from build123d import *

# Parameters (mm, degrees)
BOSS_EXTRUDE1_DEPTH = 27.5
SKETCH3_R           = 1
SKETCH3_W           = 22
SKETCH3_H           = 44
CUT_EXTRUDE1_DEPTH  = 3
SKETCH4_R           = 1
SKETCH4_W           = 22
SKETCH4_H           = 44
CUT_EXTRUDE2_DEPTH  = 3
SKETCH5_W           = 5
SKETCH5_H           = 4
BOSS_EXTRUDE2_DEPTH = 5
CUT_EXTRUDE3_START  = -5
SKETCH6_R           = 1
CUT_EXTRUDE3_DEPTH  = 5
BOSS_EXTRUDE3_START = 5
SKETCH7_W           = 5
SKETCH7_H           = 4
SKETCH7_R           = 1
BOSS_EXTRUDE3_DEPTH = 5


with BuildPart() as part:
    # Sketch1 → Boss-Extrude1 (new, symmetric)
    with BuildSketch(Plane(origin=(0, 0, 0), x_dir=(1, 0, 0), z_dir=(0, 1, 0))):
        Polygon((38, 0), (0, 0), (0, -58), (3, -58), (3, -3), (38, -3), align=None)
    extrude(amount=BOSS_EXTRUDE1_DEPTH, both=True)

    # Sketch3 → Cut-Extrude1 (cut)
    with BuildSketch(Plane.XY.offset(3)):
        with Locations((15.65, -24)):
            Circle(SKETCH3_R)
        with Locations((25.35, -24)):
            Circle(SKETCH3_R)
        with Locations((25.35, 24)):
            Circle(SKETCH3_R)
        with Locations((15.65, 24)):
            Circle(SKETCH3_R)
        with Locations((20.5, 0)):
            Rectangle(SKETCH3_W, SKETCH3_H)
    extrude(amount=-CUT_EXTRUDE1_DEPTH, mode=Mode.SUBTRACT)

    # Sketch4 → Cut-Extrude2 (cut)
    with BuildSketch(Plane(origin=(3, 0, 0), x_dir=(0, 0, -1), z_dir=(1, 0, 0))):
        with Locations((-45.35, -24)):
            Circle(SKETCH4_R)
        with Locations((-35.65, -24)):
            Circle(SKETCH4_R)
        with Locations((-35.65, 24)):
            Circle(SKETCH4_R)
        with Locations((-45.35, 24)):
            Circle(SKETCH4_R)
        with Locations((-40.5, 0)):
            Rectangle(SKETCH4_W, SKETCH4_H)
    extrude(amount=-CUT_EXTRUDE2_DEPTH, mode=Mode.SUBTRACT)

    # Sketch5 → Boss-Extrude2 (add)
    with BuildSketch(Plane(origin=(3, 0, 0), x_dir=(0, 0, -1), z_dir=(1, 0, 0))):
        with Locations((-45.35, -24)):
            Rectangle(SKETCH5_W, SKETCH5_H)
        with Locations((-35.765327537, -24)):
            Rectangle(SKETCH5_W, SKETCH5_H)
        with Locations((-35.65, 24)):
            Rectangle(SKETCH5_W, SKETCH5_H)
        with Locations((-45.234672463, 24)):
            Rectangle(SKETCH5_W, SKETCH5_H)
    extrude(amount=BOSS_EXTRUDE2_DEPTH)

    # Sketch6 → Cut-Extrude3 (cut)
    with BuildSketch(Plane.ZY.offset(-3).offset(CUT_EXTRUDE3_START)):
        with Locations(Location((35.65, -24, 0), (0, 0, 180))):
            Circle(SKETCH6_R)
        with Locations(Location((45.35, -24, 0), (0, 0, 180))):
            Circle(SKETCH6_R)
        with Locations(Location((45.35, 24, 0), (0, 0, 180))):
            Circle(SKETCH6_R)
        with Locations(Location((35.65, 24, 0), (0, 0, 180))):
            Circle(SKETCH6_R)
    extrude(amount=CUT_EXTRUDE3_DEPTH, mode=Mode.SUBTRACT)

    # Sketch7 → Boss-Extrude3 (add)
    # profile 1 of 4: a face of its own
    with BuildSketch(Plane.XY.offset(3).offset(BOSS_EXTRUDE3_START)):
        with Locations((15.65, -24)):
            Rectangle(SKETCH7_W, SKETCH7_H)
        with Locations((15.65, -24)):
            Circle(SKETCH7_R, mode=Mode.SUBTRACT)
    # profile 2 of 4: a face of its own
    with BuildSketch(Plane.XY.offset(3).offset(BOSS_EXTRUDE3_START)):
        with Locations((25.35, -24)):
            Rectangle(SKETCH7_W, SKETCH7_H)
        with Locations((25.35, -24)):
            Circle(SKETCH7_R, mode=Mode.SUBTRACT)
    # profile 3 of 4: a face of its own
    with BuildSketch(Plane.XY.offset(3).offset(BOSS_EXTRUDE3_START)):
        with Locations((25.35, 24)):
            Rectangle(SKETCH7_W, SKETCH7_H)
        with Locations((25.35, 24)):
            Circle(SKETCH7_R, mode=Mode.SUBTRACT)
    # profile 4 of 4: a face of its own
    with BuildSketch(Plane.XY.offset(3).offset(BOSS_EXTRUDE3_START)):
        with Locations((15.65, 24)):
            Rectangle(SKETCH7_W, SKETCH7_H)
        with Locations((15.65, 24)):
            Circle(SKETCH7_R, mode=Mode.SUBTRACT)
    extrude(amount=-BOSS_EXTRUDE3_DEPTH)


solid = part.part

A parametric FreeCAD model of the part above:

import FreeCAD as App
import Part
import Sketcher

doc = App.newDocument("Part")
body = doc.addObject("PartDesign::Body", "Body")

sketch1 = doc.addObject("Sketcher::SketchObject", "Sketch")
body.addObject(sketch1)
sketch1.AttachmentSupport = (doc.XZ_Plane, [""])
sketch1.MapMode = "FlatFace"
sketch1.addGeometry(Part.LineSegment(App.Vector(38, 0, 0), App.Vector(0, 0, 0)), False)
sketch1.addGeometry(Part.LineSegment(App.Vector(0, 0, 0), App.Vector(0, 58, 0)), False)
sketch1.addGeometry(Part.LineSegment(App.Vector(0, 58, 0), App.Vector(3, 58, 0)), False)
sketch1.addGeometry(Part.LineSegment(App.Vector(3, 58, 0), App.Vector(3, 3, 0)), False)
sketch1.addGeometry(Part.LineSegment(App.Vector(3, 3, 0), App.Vector(38, 3, 0)), False)
sketch1.addGeometry(Part.LineSegment(App.Vector(38, 3, 0), App.Vector(38, 0, 0)), False)
sketch1.addConstraint(Sketcher.Constraint("Coincident", 0, 2, 1, 1))
sketch1.addConstraint(Sketcher.Constraint("Coincident", 1, 2, 2, 1))
sketch1.addConstraint(Sketcher.Constraint("Coincident", 2, 2, 3, 1))
sketch1.addConstraint(Sketcher.Constraint("Coincident", 3, 2, 4, 1))
sketch1.addConstraint(Sketcher.Constraint("Coincident", 4, 2, 5, 1))
sketch1.addConstraint(Sketcher.Constraint("Coincident", 5, 2, 0, 1))
sketch1.addConstraint(Sketcher.Constraint("Horizontal", 0))
sketch1.addConstraint(Sketcher.Constraint("Vertical", 1))
sketch1.addConstraint(Sketcher.Constraint("Horizontal", 2))
sketch1.addConstraint(Sketcher.Constraint("Vertical", 3))
sketch1.addConstraint(Sketcher.Constraint("Horizontal", 4))
sketch1.addConstraint(Sketcher.Constraint("Vertical", 5))
sketch1.addConstraint(Sketcher.Constraint("Coincident", 0, 2, -1, 1))
sketch1.addConstraint(Sketcher.Constraint("Equal", 2, 5))
sketch1.addConstraint(Sketcher.Constraint("DistanceX", 0, 2, 0, 1, 38.0))
sketch1.addConstraint(Sketcher.Constraint("DistanceX", 2, 1, 2, 2, 3.0))
sketch1.addConstraint(Sketcher.Constraint("DistanceY", 1, 1, 1, 2, 58.0))
pad1 = doc.addObject("PartDesign::Pad", "Pad")
body.addObject(pad1)
pad1.Profile = sketch1
pad1.Length = 55
pad1.Midplane = True

sketch2 = doc.addObject("Sketcher::SketchObject", "Sketch001")
body.addObject(sketch2)
sketch2.AttachmentSupport = (doc.XY_Plane, [""])
sketch2.MapMode = "FlatFace"
sketch2.AttachmentOffset = App.Placement(App.Vector(0, 0, 3), App.Rotation())
sketch2.addGeometry(Part.Circle(App.Vector(15.7, -24, 0), App.Vector(0, 0, 1), 1), False)
sketch2.addGeometry(Part.Circle(App.Vector(25.4, -24, 0), App.Vector(0, 0, 1), 1), False)
sketch2.addGeometry(Part.Circle(App.Vector(25.4, 24, 0), App.Vector(0, 0, 1), 1), False)
sketch2.addGeometry(Part.Circle(App.Vector(15.7, 24, 0), App.Vector(0, 0, 1), 1), False)
sketch2.addGeometry(Part.LineSegment(App.Vector(9.5, 22, 0), App.Vector(9.5, -22, 0)), False)
sketch2.addGeometry(Part.LineSegment(App.Vector(9.5, -22, 0), App.Vector(31.5, -22, 0)), False)
sketch2.addGeometry(Part.LineSegment(App.Vector(31.5, -22, 0), App.Vector(31.5, 22, 0)), False)
sketch2.addGeometry(Part.LineSegment(App.Vector(31.5, 22, 0), App.Vector(9.5, 22, 0)), False)
sketch2.addConstraint(Sketcher.Constraint("Coincident", 4, 2, 5, 1))
sketch2.addConstraint(Sketcher.Constraint("Coincident", 5, 2, 6, 1))
sketch2.addConstraint(Sketcher.Constraint("Coincident", 6, 2, 7, 1))
sketch2.addConstraint(Sketcher.Constraint("Coincident", 7, 2, 4, 1))
sketch2.addConstraint(Sketcher.Constraint("Vertical", 4))
sketch2.addConstraint(Sketcher.Constraint("Horizontal", 5))
sketch2.addConstraint(Sketcher.Constraint("Vertical", 6))
sketch2.addConstraint(Sketcher.Constraint("Horizontal", 7))
sketch2.addConstraint(Sketcher.Constraint("Equal", 0, 1))
sketch2.addConstraint(Sketcher.Constraint("Equal", 1, 2))
sketch2.addConstraint(Sketcher.Constraint("Equal", 2, 3))
sketch2.addConstraint(Sketcher.Constraint("Symmetric", 1, 3, 2, 3, -1))
sketch2.addConstraint(Sketcher.Constraint("Symmetric", 0, 3, 3, 3, -1))
sketch2.addConstraint(Sketcher.Constraint("Horizontal", 0, 3, 1, 3))
sketch2.addConstraint(Sketcher.Constraint("Diameter", 0, 2.0))
sketch2.addConstraint(Sketcher.Constraint("DistanceX", 5, 1, 5, 2, 22.0))
sketch2.addConstraint(Sketcher.Constraint("DistanceY", 4, 2, 4, 1, 44.0))
sketch2.addConstraint(Sketcher.Constraint("DistanceY", 0, 3, -1, 1, 24.0))
sketch2.addConstraint(Sketcher.Constraint("DistanceY", 4, 2, -1, 1, 22.0))
sketch2.addConstraint(Sketcher.Constraint("DistanceX", -1, 1, 4, 2, 9.5))
sketch2.addConstraint(Sketcher.Constraint("DistanceX", 0, 3, 1, 3, 9.7))
sketch2.addConstraint(Sketcher.Constraint("DistanceX", -1, 1, 0, 3, 15.65))
pocket1 = doc.addObject("PartDesign::Pocket", "Pocket")
body.addObject(pocket1)
pocket1.Profile = sketch2
pocket1.Length = 3

sketch3 = doc.addObject("Sketcher::SketchObject", "Sketch002")
body.addObject(sketch3)
sketch3.AttachmentSupport = (doc.YZ_Plane, [""])
sketch3.MapMode = "FlatFace"
sketch3.AttachmentOffset = App.Placement(App.Vector(0, 0, 3), App.Rotation())
sketch3.addGeometry(Part.Circle(App.Vector(-24, 45.4, 0), App.Vector(0, 0, 1), 1), False)
sketch3.addGeometry(Part.Circle(App.Vector(-24, 35.6, 0), App.Vector(0, 0, 1), 1), False)
sketch3.addGeometry(Part.Circle(App.Vector(24, 35.6, 0), App.Vector(0, 0, 1), 1), False)
sketch3.addGeometry(Part.Circle(App.Vector(24, 45.4, 0), App.Vector(0, 0, 1), 1), False)
sketch3.addGeometry(Part.LineSegment(App.Vector(22, 51.5, 0), App.Vector(-22, 51.5, 0)), False)
sketch3.addGeometry(Part.LineSegment(App.Vector(-22, 51.5, 0), App.Vector(-22, 29.5, 0)), False)
sketch3.addGeometry(Part.LineSegment(App.Vector(-22, 29.5, 0), App.Vector(22, 29.5, 0)), False)
sketch3.addGeometry(Part.LineSegment(App.Vector(22, 29.5, 0), App.Vector(22, 51.5, 0)), False)
sketch3.addConstraint(Sketcher.Constraint("Coincident", 4, 2, 5, 1))
sketch3.addConstraint(Sketcher.Constraint("Coincident", 5, 2, 6, 1))
sketch3.addConstraint(Sketcher.Constraint("Coincident", 6, 2, 7, 1))
sketch3.addConstraint(Sketcher.Constraint("Coincident", 7, 2, 4, 1))
sketch3.addConstraint(Sketcher.Constraint("Horizontal", 4))
sketch3.addConstraint(Sketcher.Constraint("Vertical", 5))
sketch3.addConstraint(Sketcher.Constraint("Horizontal", 6))
sketch3.addConstraint(Sketcher.Constraint("Vertical", 7))
sketch3.addConstraint(Sketcher.Constraint("Equal", 0, 1))
sketch3.addConstraint(Sketcher.Constraint("Equal", 1, 2))
sketch3.addConstraint(Sketcher.Constraint("Equal", 2, 3))
sketch3.addConstraint(Sketcher.Constraint("Symmetric", 1, 3, 2, 3, -2))
sketch3.addConstraint(Sketcher.Constraint("Symmetric", 0, 3, 3, 3, -2))
sketch3.addConstraint(Sketcher.Constraint("Vertical", 0, 3, 1, 3))
sketch3.addConstraint(Sketcher.Constraint("Diameter", 0, 2.0))
sketch3.addConstraint(Sketcher.Constraint("DistanceX", 4, 2, 4, 1, 44.0))
sketch3.addConstraint(Sketcher.Constraint("DistanceY", 5, 2, 5, 1, 22.0))
sketch3.addConstraint(Sketcher.Constraint("DistanceX", 0, 3, -1, 1, 24.0))
sketch3.addConstraint(Sketcher.Constraint("DistanceX", 4, 2, -1, 1, 22.0))
sketch3.addConstraint(Sketcher.Constraint("DistanceY", -1, 1, 4, 2, 51.5))
sketch3.addConstraint(Sketcher.Constraint("DistanceY", 1, 3, 0, 3, 9.7))
sketch3.addConstraint(Sketcher.Constraint("DistanceY", -1, 1, 0, 3, 45.35))
pocket2 = doc.addObject("PartDesign::Pocket", "Pocket001")
body.addObject(pocket2)
pocket2.Profile = sketch3
pocket2.Length = 3

sketch4 = doc.addObject("Sketcher::SketchObject", "Sketch003")
body.addObject(sketch4)
sketch4.AttachmentSupport = (doc.YZ_Plane, [""])
sketch4.MapMode = "FlatFace"
sketch4.AttachmentOffset = App.Placement(App.Vector(0, 0, 3), App.Rotation())
sketch4.addGeometry(Part.LineSegment(App.Vector(-22, 47.9, 0), App.Vector(-26, 47.9, 0)), False)
sketch4.addGeometry(Part.LineSegment(App.Vector(-26, 47.9, 0), App.Vector(-26, 42.9, 0)), False)
sketch4.addGeometry(Part.LineSegment(App.Vector(-26, 42.9, 0), App.Vector(-22, 42.9, 0)), False)
sketch4.addGeometry(Part.LineSegment(App.Vector(-22, 42.9, 0), App.Vector(-22, 47.9, 0)), False)
sketch4.addGeometry(Part.LineSegment(App.Vector(-22, 38.3, 0), App.Vector(-26, 38.3, 0)), False)
sketch4.addGeometry(Part.LineSegment(App.Vector(-26, 38.3, 0), App.Vector(-26, 33.3, 0)), False)
sketch4.addGeometry(Part.LineSegment(App.Vector(-26, 33.3, 0), App.Vector(-22, 33.3, 0)), False)
sketch4.addGeometry(Part.LineSegment(App.Vector(-22, 33.3, 0), App.Vector(-22, 38.3, 0)), False)
sketch4.addGeometry(Part.LineSegment(App.Vector(26, 38.1, 0), App.Vector(22, 38.1, 0)), False)
sketch4.addGeometry(Part.LineSegment(App.Vector(22, 38.1, 0), App.Vector(22, 33.1, 0)), False)
sketch4.addGeometry(Part.LineSegment(App.Vector(22, 33.1, 0), App.Vector(26, 33.1, 0)), False)
sketch4.addGeometry(Part.LineSegment(App.Vector(26, 33.1, 0), App.Vector(26, 38.1, 0)), False)
sketch4.addGeometry(Part.LineSegment(App.Vector(26, 47.7, 0), App.Vector(22, 47.7, 0)), False)
sketch4.addGeometry(Part.LineSegment(App.Vector(22, 47.7, 0), App.Vector(22, 42.7, 0)), False)
sketch4.addGeometry(Part.LineSegment(App.Vector(22, 42.7, 0), App.Vector(26, 42.7, 0)), False)
sketch4.addGeometry(Part.LineSegment(App.Vector(26, 42.7, 0), App.Vector(26, 47.7, 0)), False)
sketch4.addConstraint(Sketcher.Constraint("Coincident", 0, 2, 1, 1))
sketch4.addConstraint(Sketcher.Constraint("Coincident", 1, 2, 2, 1))
sketch4.addConstraint(Sketcher.Constraint("Coincident", 2, 2, 3, 1))
sketch4.addConstraint(Sketcher.Constraint("Coincident", 3, 2, 0, 1))
sketch4.addConstraint(Sketcher.Constraint("Coincident", 4, 2, 5, 1))
sketch4.addConstraint(Sketcher.Constraint("Coincident", 5, 2, 6, 1))
sketch4.addConstraint(Sketcher.Constraint("Coincident", 6, 2, 7, 1))
sketch4.addConstraint(Sketcher.Constraint("Coincident", 7, 2, 4, 1))
sketch4.addConstraint(Sketcher.Constraint("Coincident", 8, 2, 9, 1))
sketch4.addConstraint(Sketcher.Constraint("Coincident", 9, 2, 10, 1))
sketch4.addConstraint(Sketcher.Constraint("Coincident", 10, 2, 11, 1))
sketch4.addConstraint(Sketcher.Constraint("Coincident", 11, 2, 8, 1))
sketch4.addConstraint(Sketcher.Constraint("Coincident", 12, 2, 13, 1))
sketch4.addConstraint(Sketcher.Constraint("Coincident", 13, 2, 14, 1))
sketch4.addConstraint(Sketcher.Constraint("Coincident", 14, 2, 15, 1))
sketch4.addConstraint(Sketcher.Constraint("Coincident", 15, 2, 12, 1))
sketch4.addConstraint(Sketcher.Constraint("Horizontal", 0))
sketch4.addConstraint(Sketcher.Constraint("Vertical", 1))
sketch4.addConstraint(Sketcher.Constraint("Horizontal", 2))
sketch4.addConstraint(Sketcher.Constraint("Vertical", 3))
sketch4.addConstraint(Sketcher.Constraint("Horizontal", 4))
sketch4.addConstraint(Sketcher.Constraint("Vertical", 5))
sketch4.addConstraint(Sketcher.Constraint("Horizontal", 6))
sketch4.addConstraint(Sketcher.Constraint("Vertical", 7))
sketch4.addConstraint(Sketcher.Constraint("Horizontal", 8))
sketch4.addConstraint(Sketcher.Constraint("Vertical", 9))
sketch4.addConstraint(Sketcher.Constraint("Horizontal", 10))
sketch4.addConstraint(Sketcher.Constraint("Vertical", 11))
sketch4.addConstraint(Sketcher.Constraint("Horizontal", 12))
sketch4.addConstraint(Sketcher.Constraint("Vertical", 13))
sketch4.addConstraint(Sketcher.Constraint("Horizontal", 14))
sketch4.addConstraint(Sketcher.Constraint("Vertical", 15))
sketch4.addConstraint(Sketcher.Constraint("Vertical", 1, 2, 4, 2))
sketch4.addConstraint(Sketcher.Constraint("Vertical", 3, 2, 6, 2))
sketch4.addConstraint(Sketcher.Constraint("Vertical", 9, 2, 12, 2))
sketch4.addConstraint(Sketcher.Constraint("Vertical", 11, 2, 14, 2))
sketch4.addConstraint(Sketcher.Constraint("Equal", 6, 8))
sketch4.addConstraint(Sketcher.Constraint("Equal", 3, 5))
sketch4.addConstraint(Sketcher.Constraint("Equal", 7, 9))
sketch4.addConstraint(Sketcher.Constraint("Equal", 11, 13))
sketch4.addConstraint(Sketcher.Constraint("DistanceX", 0, 2, 0, 1, 4.0))
sketch4.addConstraint(Sketcher.Constraint("DistanceY", 1, 2, 1, 1, 5.0))
sketch4.addConstraint(Sketcher.Constraint("DistanceX", 0, 2, -1, 1, 26.0))
sketch4.addConstraint(Sketcher.Constraint("DistanceX", -1, 1, 8, 2, 22.0))
sketch4.addConstraint(Sketcher.Constraint("DistanceY", 8, 2, 2, 2, 4.7))
sketch4.addConstraint(Sketcher.Constraint("DistanceY", -1, 1, 0, 2, 47.85))
sketch4.addConstraint(Sketcher.Constraint("DistanceY", -1, 1, 4, 2, 38.265328))
sketch4.addConstraint(Sketcher.Constraint("DistanceY", -1, 1, 12, 2, 47.734672))
pad2 = doc.addObject("PartDesign::Pad", "Pad001")
body.addObject(pad2)
pad2.Profile = sketch4
pad2.Length = 5

sketch5 = doc.addObject("Sketcher::SketchObject", "Sketch004")
body.addObject(sketch5)
sketch5.AttachmentSupport = (doc.YZ_Plane, [""])
sketch5.MapMode = "FlatFace"
sketch5.AttachmentOffset = App.Placement(App.Vector(0, 0, 8), App.Rotation())
sketch5.addGeometry(Part.Circle(App.Vector(-24, 35.6, 0), App.Vector(0, 0, 1), 1), False)
sketch5.addGeometry(Part.Circle(App.Vector(-24, 45.4, 0), App.Vector(0, 0, 1), 1), False)
sketch5.addGeometry(Part.Circle(App.Vector(24, 45.4, 0), App.Vector(0, 0, 1), 1), False)
sketch5.addGeometry(Part.Circle(App.Vector(24, 35.6, 0), App.Vector(0, 0, 1), 1), False)
sketch5.addConstraint(Sketcher.Constraint("Equal", 0, 1))
sketch5.addConstraint(Sketcher.Constraint("Equal", 1, 2))
sketch5.addConstraint(Sketcher.Constraint("Equal", 2, 3))
sketch5.addConstraint(Sketcher.Constraint("Symmetric", 1, 3, 2, 3, -2))
sketch5.addConstraint(Sketcher.Constraint("Symmetric", 0, 3, 3, 3, -2))
sketch5.addConstraint(Sketcher.Constraint("Vertical", 0, 3, 1, 3))
sketch5.addConstraint(Sketcher.Constraint("Diameter", 0, 2.0))
sketch5.addConstraint(Sketcher.Constraint("DistanceX", 0, 3, -1, 1, 24.0))
sketch5.addConstraint(Sketcher.Constraint("DistanceY", 0, 3, 1, 3, 9.7))
sketch5.addConstraint(Sketcher.Constraint("DistanceY", -1, 1, 0, 3, 35.65))
pocket3 = doc.addObject("PartDesign::Pocket", "Pocket002")
body.addObject(pocket3)
pocket3.Profile = sketch5
pocket3.Length = 5

sketch6 = doc.addObject("Sketcher::SketchObject", "Sketch005")
body.addObject(sketch6)
sketch6.AttachmentSupport = (doc.XY_Plane, [""])
sketch6.MapMode = "FlatFace"
sketch6.AttachmentOffset = App.Placement(App.Vector(0, 0, 8), App.Rotation())
sketch6.addGeometry(Part.LineSegment(App.Vector(13.2, -22, 0), App.Vector(13.2, -26, 0)), False)
sketch6.addGeometry(Part.LineSegment(App.Vector(13.2, -26, 0), App.Vector(18.1, -26, 0)), False)
sketch6.addGeometry(Part.LineSegment(App.Vector(18.1, -26, 0), App.Vector(18.1, -22, 0)), False)
sketch6.addGeometry(Part.LineSegment(App.Vector(18.1, -22, 0), App.Vector(13.2, -22, 0)), False)
sketch6.addGeometry(Part.Circle(App.Vector(15.7, -24, 0), App.Vector(0, 0, 1), 1), False)
sketch6.addGeometry(Part.LineSegment(App.Vector(22.9, -22, 0), App.Vector(22.9, -26, 0)), False)
sketch6.addGeometry(Part.LineSegment(App.Vector(22.9, -26, 0), App.Vector(27.9, -26, 0)), False)
sketch6.addGeometry(Part.LineSegment(App.Vector(27.9, -26, 0), App.Vector(27.9, -22, 0)), False)
sketch6.addGeometry(Part.LineSegment(App.Vector(27.9, -22, 0), App.Vector(22.9, -22, 0)), False)
sketch6.addGeometry(Part.Circle(App.Vector(25.4, -24, 0), App.Vector(0, 0, 1), 1), False)
sketch6.addGeometry(Part.LineSegment(App.Vector(22.9, 26, 0), App.Vector(22.9, 22, 0)), False)
sketch6.addGeometry(Part.LineSegment(App.Vector(22.9, 22, 0), App.Vector(27.9, 22, 0)), False)
sketch6.addGeometry(Part.LineSegment(App.Vector(27.9, 22, 0), App.Vector(27.9, 26, 0)), False)
sketch6.addGeometry(Part.LineSegment(App.Vector(27.9, 26, 0), App.Vector(22.9, 26, 0)), False)
sketch6.addGeometry(Part.Circle(App.Vector(25.4, 24, 0), App.Vector(0, 0, 1), 1), False)
sketch6.addGeometry(Part.LineSegment(App.Vector(13.2, 26, 0), App.Vector(13.2, 22, 0)), False)
sketch6.addGeometry(Part.LineSegment(App.Vector(13.2, 22, 0), App.Vector(18.1, 22, 0)), False)
sketch6.addGeometry(Part.LineSegment(App.Vector(18.1, 22, 0), App.Vector(18.1, 26, 0)), False)
sketch6.addGeometry(Part.LineSegment(App.Vector(18.1, 26, 0), App.Vector(13.2, 26, 0)), False)
sketch6.addGeometry(Part.Circle(App.Vector(15.7, 24, 0), App.Vector(0, 0, 1), 1), False)
sketch6.addConstraint(Sketcher.Constraint("Coincident", 0, 2, 1, 1))
sketch6.addConstraint(Sketcher.Constraint("Coincident", 1, 2, 2, 1))
sketch6.addConstraint(Sketcher.Constraint("Coincident", 2, 2, 3, 1))
sketch6.addConstraint(Sketcher.Constraint("Coincident", 3, 2, 0, 1))
sketch6.addConstraint(Sketcher.Constraint("Coincident", 5, 2, 6, 1))
sketch6.addConstraint(Sketcher.Constraint("Coincident", 6, 2, 7, 1))
sketch6.addConstraint(Sketcher.Constraint("Coincident", 7, 2, 8, 1))
sketch6.addConstraint(Sketcher.Constraint("Coincident", 8, 2, 5, 1))
sketch6.addConstraint(Sketcher.Constraint("Coincident", 10, 2, 11, 1))
sketch6.addConstraint(Sketcher.Constraint("Coincident", 11, 2, 12, 1))
sketch6.addConstraint(Sketcher.Constraint("Coincident", 12, 2, 13, 1))
sketch6.addConstraint(Sketcher.Constraint("Coincident", 13, 2, 10, 1))
sketch6.addConstraint(Sketcher.Constraint("Coincident", 15, 2, 16, 1))
sketch6.addConstraint(Sketcher.Constraint("Coincident", 16, 2, 17, 1))
sketch6.addConstraint(Sketcher.Constraint("Coincident", 17, 2, 18, 1))
sketch6.addConstraint(Sketcher.Constraint("Coincident", 18, 2, 15, 1))
sketch6.addConstraint(Sketcher.Constraint("Vertical", 0))
sketch6.addConstraint(Sketcher.Constraint("Horizontal", 1))
sketch6.addConstraint(Sketcher.Constraint("Vertical", 2))
sketch6.addConstraint(Sketcher.Constraint("Horizontal", 3))
sketch6.addConstraint(Sketcher.Constraint("Vertical", 5))
sketch6.addConstraint(Sketcher.Constraint("Horizontal", 6))
sketch6.addConstraint(Sketcher.Constraint("Vertical", 7))
sketch6.addConstraint(Sketcher.Constraint("Horizontal", 8))
sketch6.addConstraint(Sketcher.Constraint("Vertical", 10))
sketch6.addConstraint(Sketcher.Constraint("Horizontal", 11))
sketch6.addConstraint(Sketcher.Constraint("Vertical", 12))
sketch6.addConstraint(Sketcher.Constraint("Horizontal", 13))
sketch6.addConstraint(Sketcher.Constraint("Vertical", 15))
sketch6.addConstraint(Sketcher.Constraint("Horizontal", 16))
sketch6.addConstraint(Sketcher.Constraint("Vertical", 17))
sketch6.addConstraint(Sketcher.Constraint("Horizontal", 18))
sketch6.addConstraint(Sketcher.Constraint("Equal", 4, 9))
sketch6.addConstraint(Sketcher.Constraint("Equal", 9, 14))
sketch6.addConstraint(Sketcher.Constraint("Equal", 14, 19))
sketch6.addConstraint(Sketcher.Constraint("Symmetric", 9, 3, 14, 3, -1))
sketch6.addConstraint(Sketcher.Constraint("Symmetric", 4, 3, 19, 3, -1))
sketch6.addConstraint(Sketcher.Constraint("Symmetric", 8, 2, 10, 2, -1))
sketch6.addConstraint(Sketcher.Constraint("Symmetric", 6, 2, 12, 2, -1))
sketch6.addConstraint(Sketcher.Constraint("Symmetric", 3, 2, 15, 2, -1))
sketch6.addConstraint(Sketcher.Constraint("Symmetric", 1, 2, 17, 2, -1))
sketch6.addConstraint(Sketcher.Constraint("Horizontal", 4, 3, 9, 3))
sketch6.addConstraint(Sketcher.Constraint("Horizontal", 1, 2, 5, 2))
sketch6.addConstraint(Sketcher.Constraint("Horizontal", 3, 2, 7, 2))
sketch6.addConstraint(Sketcher.Constraint("Equal", 3, 6))
sketch6.addConstraint(Sketcher.Constraint("Diameter", 4, 2.0))
sketch6.addConstraint(Sketcher.Constraint("DistanceX", 1, 1, 1, 2, 5.0))
sketch6.addConstraint(Sketcher.Constraint("DistanceY", 0, 2, 0, 1, 4.0))
sketch6.addConstraint(Sketcher.Constraint("DistanceY", 4, 3, -1, 1, 24.0))
sketch6.addConstraint(Sketcher.Constraint("DistanceY", 0, 2, -1, 1, 26.0))
sketch6.addConstraint(Sketcher.Constraint("DistanceX", 4, 3, 9, 3, 9.7))
sketch6.addConstraint(Sketcher.Constraint("DistanceX", 0, 2, 4, 3, 2.5))
sketch6.addConstraint(Sketcher.Constraint("DistanceX", 5, 2, 9, 3, 2.5))
sketch6.addConstraint(Sketcher.Constraint("DistanceX", -1, 1, 4, 3, 15.65))
pad3 = doc.addObject("PartDesign::Pad", "Pad002")
body.addObject(pad3)
pad3.Profile = sketch6
pad3.Length = 5
pad3.Reversed = True

doc.recompute()
